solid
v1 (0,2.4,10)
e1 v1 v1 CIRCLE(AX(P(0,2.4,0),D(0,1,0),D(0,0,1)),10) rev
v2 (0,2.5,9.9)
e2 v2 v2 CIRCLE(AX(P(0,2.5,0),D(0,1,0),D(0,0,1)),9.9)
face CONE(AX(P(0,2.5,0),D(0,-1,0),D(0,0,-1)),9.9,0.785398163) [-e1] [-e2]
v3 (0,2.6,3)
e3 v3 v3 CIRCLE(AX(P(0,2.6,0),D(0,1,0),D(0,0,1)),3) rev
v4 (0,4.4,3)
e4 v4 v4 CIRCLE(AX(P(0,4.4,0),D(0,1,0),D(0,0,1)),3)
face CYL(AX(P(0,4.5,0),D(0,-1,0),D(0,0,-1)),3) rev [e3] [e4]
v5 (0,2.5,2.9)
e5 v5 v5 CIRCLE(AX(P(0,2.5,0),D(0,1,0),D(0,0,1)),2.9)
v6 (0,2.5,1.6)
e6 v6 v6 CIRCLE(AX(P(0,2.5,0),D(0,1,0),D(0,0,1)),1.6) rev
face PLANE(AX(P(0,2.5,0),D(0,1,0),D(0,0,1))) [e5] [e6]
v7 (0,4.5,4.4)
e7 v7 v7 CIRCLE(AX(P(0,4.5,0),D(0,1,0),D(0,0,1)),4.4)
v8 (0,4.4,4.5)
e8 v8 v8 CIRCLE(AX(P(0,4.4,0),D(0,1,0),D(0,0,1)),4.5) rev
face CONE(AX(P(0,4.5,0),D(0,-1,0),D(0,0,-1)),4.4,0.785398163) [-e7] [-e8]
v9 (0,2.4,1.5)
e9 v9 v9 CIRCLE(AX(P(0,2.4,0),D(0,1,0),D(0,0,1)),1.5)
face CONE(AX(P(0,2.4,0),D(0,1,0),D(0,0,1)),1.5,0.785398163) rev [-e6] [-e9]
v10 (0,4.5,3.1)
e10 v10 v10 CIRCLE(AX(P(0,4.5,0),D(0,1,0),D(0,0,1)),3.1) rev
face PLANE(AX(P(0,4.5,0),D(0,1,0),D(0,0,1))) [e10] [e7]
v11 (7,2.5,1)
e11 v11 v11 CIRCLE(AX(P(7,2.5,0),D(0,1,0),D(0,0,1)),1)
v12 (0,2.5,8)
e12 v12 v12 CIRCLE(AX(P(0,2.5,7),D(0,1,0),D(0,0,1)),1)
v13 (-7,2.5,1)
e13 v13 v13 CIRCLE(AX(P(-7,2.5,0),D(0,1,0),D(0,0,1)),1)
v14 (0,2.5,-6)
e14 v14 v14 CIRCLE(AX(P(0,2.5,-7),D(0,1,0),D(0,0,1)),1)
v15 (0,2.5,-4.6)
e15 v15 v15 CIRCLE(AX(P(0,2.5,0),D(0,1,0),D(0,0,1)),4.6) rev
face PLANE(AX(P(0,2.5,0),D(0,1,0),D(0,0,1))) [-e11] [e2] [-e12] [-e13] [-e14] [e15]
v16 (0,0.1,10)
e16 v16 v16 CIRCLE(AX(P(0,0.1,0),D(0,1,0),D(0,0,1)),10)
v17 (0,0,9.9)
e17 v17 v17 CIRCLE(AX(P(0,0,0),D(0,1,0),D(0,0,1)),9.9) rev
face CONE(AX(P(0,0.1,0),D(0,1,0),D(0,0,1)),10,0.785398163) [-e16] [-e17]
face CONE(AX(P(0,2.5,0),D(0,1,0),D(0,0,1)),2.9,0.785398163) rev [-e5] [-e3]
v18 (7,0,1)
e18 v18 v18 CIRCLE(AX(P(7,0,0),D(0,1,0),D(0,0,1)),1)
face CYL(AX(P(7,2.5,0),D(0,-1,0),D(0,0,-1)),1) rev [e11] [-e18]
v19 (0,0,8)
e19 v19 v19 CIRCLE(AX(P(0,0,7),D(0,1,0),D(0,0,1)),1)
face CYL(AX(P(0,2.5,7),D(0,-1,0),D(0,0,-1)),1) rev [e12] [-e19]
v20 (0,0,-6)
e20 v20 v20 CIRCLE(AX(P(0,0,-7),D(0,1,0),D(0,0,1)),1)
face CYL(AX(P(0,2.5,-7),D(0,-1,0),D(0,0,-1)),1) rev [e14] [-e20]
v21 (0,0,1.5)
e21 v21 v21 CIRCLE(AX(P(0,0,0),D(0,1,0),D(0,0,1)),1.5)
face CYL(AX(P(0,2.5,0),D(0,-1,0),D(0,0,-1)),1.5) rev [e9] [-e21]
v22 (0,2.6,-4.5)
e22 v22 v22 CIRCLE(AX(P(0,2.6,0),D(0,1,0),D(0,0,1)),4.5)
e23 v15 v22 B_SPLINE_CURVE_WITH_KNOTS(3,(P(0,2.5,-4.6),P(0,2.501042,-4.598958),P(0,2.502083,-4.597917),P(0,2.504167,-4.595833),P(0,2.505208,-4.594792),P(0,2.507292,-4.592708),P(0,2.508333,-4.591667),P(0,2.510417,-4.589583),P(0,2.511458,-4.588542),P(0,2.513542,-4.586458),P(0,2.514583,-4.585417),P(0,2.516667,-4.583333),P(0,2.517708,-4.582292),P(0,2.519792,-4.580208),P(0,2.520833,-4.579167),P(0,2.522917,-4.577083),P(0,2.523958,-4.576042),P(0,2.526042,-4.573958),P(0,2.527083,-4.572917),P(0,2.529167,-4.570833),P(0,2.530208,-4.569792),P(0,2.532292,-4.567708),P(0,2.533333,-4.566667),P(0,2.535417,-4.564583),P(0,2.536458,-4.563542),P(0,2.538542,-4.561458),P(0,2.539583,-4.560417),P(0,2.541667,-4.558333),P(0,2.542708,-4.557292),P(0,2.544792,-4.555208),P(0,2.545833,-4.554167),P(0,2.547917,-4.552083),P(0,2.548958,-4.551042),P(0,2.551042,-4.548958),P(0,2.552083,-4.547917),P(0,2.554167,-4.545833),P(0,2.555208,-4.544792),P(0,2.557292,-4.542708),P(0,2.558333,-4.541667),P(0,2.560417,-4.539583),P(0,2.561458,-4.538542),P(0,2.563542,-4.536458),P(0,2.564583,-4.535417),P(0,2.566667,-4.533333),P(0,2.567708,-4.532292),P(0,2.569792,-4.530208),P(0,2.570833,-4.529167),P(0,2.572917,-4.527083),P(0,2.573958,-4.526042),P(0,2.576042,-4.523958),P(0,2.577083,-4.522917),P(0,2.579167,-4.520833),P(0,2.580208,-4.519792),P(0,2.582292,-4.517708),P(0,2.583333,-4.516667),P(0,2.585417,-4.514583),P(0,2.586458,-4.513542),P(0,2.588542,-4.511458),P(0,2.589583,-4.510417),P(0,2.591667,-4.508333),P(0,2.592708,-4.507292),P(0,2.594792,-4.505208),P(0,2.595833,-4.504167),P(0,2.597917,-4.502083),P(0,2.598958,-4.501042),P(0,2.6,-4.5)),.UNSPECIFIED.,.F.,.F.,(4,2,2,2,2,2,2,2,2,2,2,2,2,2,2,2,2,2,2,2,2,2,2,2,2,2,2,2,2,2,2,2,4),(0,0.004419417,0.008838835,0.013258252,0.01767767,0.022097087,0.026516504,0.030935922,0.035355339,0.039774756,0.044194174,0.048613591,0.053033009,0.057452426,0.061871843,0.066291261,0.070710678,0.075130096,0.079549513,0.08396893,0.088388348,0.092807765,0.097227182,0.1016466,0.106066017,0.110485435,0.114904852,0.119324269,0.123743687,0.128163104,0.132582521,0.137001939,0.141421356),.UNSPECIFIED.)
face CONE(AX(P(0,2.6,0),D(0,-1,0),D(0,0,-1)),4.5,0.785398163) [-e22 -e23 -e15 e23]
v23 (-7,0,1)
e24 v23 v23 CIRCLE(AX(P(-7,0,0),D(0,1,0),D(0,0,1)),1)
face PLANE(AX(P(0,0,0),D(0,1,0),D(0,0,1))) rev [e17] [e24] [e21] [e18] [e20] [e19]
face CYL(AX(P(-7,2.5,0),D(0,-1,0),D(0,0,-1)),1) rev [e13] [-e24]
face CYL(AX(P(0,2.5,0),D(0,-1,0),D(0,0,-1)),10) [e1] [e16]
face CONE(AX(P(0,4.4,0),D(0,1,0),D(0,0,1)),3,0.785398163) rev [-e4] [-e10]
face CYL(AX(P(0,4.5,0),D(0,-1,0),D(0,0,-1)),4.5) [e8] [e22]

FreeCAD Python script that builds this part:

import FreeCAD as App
import Part
import Sketcher

V = App.Vector


def edges_at(feature, points):
    """Names of the edges that pass closest to the given points."""
    edges = feature.Shape.Edges
    near = lambda p: min(range(len(edges)), key=lambda i: edges[i].distToShape(Part.Vertex(*p))[0])
    return sorted({f"Edge{near(p) + 1}" for p in points})

doc = App.newDocument("Part")
body = doc.addObject("PartDesign::Body", "Body")

# Sketch on XZ plane
sketch1 = doc.addObject("Sketcher::SketchObject", "Sketch")
body.addObject(sketch1)
sketch1.AttachmentSupport = (doc.XZ_Plane, [""])
sketch1.MapMode = "FlatFace"
sketch1.addGeometry(Part.Circle(V(0, 0, 0), V(0, 0, 1), 10), False)
sketch1.addGeometry(Part.Circle(V(0, -7, 0), V(0, 0, 1), 1), False)
sketch1.addGeometry(Part.Circle(V(-7, 0, 0), V(0, 0, 1), 1), False)
sketch1.addGeometry(Part.Circle(V(0, 0, 0), V(0, 0, 1), 1.5), False)
sketch1.addGeometry(Part.Circle(V(7, 0, 0), V(0, 0, 1), 1), False)
sketch1.addGeometry(Part.Circle(V(0, 7, 0), V(0, 0, 1), 1), False)
sketch1.addConstraint(Sketcher.Constraint("Coincident", 0, 3, -1, 1))
sketch1.addConstraint(Sketcher.Constraint("Coincident", 3, 3, -1, 1))
sketch1.addConstraint(Sketcher.Constraint("Equal", 1, 2))
sketch1.addConstraint(Sketcher.Constraint("Equal", 2, 4))
sketch1.addConstraint(Sketcher.Constraint("Equal", 4, 5))
sketch1.addConstraint(Sketcher.Constraint("Symmetric", 2, 3, 4, 3, -1, 1))
sketch1.addConstraint(Sketcher.Constraint("Symmetric", 1, 3, 5, 3, -1, 1))
sketch1.addConstraint(Sketcher.Constraint("PointOnObject", 1, 3, -2))
sketch1.addConstraint(Sketcher.Constraint("PointOnObject", 2, 3, -1))
sketch1.addConstraint(Sketcher.Constraint("Diameter", 0, 20.0))
sketch1.addConstraint(Sketcher.Constraint("Diameter", 1, 2.0))
sketch1.addConstraint(Sketcher.Constraint("Diameter", 3, 3.0))
sketch1.addConstraint(Sketcher.Constraint("DistanceY", 1, 3, -1, 1, 7.0))
sketch1.addConstraint(Sketcher.Constraint("DistanceX", 2, 3, -1, 1, 7.0))
pad1 = doc.addObject("PartDesign::Pad", "Pad")
body.addObject(pad1)
pad1.Profile = sketch1
pad1.Length = 2.5
pad1.Reversed = True

# Sketch on XZ plane
sketch2 = doc.addObject("Sketcher::SketchObject", "Sketch001")
body.addObject(sketch2)
sketch2.AttachmentSupport = (doc.XZ_Plane, [""])
sketch2.MapMode = "FlatFace"
sketch2.AttachmentOffset = App.Placement(V(0, 0, -2.5), App.Rotation())
sketch2.addGeometry(Part.Circle(V(0, 0, 0), V(0, 0, 1), 4.5), False)
sketch2.addGeometry(Part.Circle(V(0, 0, 0), V(0, 0, 1), 3), False)
sketch2.addConstraint(Sketcher.Constraint("Coincident", 0, 3, -1, 1))
sketch2.addConstraint(Sketcher.Constraint("Coincident", 1, 3, -1, 1))
sketch2.addConstraint(Sketcher.Constraint("Diameter", 0, 9.0))
sketch2.addConstraint(Sketcher.Constraint("Diameter", 1, 6.0))
pad2 = doc.addObject("PartDesign::Pad", "Pad001")
body.addObject(pad2)
pad2.Profile = sketch2
pad2.Length = 2
pad2.Reversed = True
doc.recompute()

chamfer = doc.addObject("PartDesign::Chamfer", "Chamfer")
body.addObject(chamfer)
chamfer.Base = (pad2, edges_at(pad2, [(0, 4.5, -4.5)]))
chamfer.Size = 0.1
doc.recompute()

chamfer2 = doc.addObject("PartDesign::Chamfer", "Chamfer001")
body.addObject(chamfer2)
chamfer2.Base = (chamfer, edges_at(chamfer, [
    (0, 0, -10),
    (0, 2.5, -4.5),
    (0, 2.5, -3),
    (0, 4.5, -3),
    (0, 2.5, -10),
    (0, 2.5, -1.5),
]))
chamfer2.Size = 0.1

doc.recompute()
